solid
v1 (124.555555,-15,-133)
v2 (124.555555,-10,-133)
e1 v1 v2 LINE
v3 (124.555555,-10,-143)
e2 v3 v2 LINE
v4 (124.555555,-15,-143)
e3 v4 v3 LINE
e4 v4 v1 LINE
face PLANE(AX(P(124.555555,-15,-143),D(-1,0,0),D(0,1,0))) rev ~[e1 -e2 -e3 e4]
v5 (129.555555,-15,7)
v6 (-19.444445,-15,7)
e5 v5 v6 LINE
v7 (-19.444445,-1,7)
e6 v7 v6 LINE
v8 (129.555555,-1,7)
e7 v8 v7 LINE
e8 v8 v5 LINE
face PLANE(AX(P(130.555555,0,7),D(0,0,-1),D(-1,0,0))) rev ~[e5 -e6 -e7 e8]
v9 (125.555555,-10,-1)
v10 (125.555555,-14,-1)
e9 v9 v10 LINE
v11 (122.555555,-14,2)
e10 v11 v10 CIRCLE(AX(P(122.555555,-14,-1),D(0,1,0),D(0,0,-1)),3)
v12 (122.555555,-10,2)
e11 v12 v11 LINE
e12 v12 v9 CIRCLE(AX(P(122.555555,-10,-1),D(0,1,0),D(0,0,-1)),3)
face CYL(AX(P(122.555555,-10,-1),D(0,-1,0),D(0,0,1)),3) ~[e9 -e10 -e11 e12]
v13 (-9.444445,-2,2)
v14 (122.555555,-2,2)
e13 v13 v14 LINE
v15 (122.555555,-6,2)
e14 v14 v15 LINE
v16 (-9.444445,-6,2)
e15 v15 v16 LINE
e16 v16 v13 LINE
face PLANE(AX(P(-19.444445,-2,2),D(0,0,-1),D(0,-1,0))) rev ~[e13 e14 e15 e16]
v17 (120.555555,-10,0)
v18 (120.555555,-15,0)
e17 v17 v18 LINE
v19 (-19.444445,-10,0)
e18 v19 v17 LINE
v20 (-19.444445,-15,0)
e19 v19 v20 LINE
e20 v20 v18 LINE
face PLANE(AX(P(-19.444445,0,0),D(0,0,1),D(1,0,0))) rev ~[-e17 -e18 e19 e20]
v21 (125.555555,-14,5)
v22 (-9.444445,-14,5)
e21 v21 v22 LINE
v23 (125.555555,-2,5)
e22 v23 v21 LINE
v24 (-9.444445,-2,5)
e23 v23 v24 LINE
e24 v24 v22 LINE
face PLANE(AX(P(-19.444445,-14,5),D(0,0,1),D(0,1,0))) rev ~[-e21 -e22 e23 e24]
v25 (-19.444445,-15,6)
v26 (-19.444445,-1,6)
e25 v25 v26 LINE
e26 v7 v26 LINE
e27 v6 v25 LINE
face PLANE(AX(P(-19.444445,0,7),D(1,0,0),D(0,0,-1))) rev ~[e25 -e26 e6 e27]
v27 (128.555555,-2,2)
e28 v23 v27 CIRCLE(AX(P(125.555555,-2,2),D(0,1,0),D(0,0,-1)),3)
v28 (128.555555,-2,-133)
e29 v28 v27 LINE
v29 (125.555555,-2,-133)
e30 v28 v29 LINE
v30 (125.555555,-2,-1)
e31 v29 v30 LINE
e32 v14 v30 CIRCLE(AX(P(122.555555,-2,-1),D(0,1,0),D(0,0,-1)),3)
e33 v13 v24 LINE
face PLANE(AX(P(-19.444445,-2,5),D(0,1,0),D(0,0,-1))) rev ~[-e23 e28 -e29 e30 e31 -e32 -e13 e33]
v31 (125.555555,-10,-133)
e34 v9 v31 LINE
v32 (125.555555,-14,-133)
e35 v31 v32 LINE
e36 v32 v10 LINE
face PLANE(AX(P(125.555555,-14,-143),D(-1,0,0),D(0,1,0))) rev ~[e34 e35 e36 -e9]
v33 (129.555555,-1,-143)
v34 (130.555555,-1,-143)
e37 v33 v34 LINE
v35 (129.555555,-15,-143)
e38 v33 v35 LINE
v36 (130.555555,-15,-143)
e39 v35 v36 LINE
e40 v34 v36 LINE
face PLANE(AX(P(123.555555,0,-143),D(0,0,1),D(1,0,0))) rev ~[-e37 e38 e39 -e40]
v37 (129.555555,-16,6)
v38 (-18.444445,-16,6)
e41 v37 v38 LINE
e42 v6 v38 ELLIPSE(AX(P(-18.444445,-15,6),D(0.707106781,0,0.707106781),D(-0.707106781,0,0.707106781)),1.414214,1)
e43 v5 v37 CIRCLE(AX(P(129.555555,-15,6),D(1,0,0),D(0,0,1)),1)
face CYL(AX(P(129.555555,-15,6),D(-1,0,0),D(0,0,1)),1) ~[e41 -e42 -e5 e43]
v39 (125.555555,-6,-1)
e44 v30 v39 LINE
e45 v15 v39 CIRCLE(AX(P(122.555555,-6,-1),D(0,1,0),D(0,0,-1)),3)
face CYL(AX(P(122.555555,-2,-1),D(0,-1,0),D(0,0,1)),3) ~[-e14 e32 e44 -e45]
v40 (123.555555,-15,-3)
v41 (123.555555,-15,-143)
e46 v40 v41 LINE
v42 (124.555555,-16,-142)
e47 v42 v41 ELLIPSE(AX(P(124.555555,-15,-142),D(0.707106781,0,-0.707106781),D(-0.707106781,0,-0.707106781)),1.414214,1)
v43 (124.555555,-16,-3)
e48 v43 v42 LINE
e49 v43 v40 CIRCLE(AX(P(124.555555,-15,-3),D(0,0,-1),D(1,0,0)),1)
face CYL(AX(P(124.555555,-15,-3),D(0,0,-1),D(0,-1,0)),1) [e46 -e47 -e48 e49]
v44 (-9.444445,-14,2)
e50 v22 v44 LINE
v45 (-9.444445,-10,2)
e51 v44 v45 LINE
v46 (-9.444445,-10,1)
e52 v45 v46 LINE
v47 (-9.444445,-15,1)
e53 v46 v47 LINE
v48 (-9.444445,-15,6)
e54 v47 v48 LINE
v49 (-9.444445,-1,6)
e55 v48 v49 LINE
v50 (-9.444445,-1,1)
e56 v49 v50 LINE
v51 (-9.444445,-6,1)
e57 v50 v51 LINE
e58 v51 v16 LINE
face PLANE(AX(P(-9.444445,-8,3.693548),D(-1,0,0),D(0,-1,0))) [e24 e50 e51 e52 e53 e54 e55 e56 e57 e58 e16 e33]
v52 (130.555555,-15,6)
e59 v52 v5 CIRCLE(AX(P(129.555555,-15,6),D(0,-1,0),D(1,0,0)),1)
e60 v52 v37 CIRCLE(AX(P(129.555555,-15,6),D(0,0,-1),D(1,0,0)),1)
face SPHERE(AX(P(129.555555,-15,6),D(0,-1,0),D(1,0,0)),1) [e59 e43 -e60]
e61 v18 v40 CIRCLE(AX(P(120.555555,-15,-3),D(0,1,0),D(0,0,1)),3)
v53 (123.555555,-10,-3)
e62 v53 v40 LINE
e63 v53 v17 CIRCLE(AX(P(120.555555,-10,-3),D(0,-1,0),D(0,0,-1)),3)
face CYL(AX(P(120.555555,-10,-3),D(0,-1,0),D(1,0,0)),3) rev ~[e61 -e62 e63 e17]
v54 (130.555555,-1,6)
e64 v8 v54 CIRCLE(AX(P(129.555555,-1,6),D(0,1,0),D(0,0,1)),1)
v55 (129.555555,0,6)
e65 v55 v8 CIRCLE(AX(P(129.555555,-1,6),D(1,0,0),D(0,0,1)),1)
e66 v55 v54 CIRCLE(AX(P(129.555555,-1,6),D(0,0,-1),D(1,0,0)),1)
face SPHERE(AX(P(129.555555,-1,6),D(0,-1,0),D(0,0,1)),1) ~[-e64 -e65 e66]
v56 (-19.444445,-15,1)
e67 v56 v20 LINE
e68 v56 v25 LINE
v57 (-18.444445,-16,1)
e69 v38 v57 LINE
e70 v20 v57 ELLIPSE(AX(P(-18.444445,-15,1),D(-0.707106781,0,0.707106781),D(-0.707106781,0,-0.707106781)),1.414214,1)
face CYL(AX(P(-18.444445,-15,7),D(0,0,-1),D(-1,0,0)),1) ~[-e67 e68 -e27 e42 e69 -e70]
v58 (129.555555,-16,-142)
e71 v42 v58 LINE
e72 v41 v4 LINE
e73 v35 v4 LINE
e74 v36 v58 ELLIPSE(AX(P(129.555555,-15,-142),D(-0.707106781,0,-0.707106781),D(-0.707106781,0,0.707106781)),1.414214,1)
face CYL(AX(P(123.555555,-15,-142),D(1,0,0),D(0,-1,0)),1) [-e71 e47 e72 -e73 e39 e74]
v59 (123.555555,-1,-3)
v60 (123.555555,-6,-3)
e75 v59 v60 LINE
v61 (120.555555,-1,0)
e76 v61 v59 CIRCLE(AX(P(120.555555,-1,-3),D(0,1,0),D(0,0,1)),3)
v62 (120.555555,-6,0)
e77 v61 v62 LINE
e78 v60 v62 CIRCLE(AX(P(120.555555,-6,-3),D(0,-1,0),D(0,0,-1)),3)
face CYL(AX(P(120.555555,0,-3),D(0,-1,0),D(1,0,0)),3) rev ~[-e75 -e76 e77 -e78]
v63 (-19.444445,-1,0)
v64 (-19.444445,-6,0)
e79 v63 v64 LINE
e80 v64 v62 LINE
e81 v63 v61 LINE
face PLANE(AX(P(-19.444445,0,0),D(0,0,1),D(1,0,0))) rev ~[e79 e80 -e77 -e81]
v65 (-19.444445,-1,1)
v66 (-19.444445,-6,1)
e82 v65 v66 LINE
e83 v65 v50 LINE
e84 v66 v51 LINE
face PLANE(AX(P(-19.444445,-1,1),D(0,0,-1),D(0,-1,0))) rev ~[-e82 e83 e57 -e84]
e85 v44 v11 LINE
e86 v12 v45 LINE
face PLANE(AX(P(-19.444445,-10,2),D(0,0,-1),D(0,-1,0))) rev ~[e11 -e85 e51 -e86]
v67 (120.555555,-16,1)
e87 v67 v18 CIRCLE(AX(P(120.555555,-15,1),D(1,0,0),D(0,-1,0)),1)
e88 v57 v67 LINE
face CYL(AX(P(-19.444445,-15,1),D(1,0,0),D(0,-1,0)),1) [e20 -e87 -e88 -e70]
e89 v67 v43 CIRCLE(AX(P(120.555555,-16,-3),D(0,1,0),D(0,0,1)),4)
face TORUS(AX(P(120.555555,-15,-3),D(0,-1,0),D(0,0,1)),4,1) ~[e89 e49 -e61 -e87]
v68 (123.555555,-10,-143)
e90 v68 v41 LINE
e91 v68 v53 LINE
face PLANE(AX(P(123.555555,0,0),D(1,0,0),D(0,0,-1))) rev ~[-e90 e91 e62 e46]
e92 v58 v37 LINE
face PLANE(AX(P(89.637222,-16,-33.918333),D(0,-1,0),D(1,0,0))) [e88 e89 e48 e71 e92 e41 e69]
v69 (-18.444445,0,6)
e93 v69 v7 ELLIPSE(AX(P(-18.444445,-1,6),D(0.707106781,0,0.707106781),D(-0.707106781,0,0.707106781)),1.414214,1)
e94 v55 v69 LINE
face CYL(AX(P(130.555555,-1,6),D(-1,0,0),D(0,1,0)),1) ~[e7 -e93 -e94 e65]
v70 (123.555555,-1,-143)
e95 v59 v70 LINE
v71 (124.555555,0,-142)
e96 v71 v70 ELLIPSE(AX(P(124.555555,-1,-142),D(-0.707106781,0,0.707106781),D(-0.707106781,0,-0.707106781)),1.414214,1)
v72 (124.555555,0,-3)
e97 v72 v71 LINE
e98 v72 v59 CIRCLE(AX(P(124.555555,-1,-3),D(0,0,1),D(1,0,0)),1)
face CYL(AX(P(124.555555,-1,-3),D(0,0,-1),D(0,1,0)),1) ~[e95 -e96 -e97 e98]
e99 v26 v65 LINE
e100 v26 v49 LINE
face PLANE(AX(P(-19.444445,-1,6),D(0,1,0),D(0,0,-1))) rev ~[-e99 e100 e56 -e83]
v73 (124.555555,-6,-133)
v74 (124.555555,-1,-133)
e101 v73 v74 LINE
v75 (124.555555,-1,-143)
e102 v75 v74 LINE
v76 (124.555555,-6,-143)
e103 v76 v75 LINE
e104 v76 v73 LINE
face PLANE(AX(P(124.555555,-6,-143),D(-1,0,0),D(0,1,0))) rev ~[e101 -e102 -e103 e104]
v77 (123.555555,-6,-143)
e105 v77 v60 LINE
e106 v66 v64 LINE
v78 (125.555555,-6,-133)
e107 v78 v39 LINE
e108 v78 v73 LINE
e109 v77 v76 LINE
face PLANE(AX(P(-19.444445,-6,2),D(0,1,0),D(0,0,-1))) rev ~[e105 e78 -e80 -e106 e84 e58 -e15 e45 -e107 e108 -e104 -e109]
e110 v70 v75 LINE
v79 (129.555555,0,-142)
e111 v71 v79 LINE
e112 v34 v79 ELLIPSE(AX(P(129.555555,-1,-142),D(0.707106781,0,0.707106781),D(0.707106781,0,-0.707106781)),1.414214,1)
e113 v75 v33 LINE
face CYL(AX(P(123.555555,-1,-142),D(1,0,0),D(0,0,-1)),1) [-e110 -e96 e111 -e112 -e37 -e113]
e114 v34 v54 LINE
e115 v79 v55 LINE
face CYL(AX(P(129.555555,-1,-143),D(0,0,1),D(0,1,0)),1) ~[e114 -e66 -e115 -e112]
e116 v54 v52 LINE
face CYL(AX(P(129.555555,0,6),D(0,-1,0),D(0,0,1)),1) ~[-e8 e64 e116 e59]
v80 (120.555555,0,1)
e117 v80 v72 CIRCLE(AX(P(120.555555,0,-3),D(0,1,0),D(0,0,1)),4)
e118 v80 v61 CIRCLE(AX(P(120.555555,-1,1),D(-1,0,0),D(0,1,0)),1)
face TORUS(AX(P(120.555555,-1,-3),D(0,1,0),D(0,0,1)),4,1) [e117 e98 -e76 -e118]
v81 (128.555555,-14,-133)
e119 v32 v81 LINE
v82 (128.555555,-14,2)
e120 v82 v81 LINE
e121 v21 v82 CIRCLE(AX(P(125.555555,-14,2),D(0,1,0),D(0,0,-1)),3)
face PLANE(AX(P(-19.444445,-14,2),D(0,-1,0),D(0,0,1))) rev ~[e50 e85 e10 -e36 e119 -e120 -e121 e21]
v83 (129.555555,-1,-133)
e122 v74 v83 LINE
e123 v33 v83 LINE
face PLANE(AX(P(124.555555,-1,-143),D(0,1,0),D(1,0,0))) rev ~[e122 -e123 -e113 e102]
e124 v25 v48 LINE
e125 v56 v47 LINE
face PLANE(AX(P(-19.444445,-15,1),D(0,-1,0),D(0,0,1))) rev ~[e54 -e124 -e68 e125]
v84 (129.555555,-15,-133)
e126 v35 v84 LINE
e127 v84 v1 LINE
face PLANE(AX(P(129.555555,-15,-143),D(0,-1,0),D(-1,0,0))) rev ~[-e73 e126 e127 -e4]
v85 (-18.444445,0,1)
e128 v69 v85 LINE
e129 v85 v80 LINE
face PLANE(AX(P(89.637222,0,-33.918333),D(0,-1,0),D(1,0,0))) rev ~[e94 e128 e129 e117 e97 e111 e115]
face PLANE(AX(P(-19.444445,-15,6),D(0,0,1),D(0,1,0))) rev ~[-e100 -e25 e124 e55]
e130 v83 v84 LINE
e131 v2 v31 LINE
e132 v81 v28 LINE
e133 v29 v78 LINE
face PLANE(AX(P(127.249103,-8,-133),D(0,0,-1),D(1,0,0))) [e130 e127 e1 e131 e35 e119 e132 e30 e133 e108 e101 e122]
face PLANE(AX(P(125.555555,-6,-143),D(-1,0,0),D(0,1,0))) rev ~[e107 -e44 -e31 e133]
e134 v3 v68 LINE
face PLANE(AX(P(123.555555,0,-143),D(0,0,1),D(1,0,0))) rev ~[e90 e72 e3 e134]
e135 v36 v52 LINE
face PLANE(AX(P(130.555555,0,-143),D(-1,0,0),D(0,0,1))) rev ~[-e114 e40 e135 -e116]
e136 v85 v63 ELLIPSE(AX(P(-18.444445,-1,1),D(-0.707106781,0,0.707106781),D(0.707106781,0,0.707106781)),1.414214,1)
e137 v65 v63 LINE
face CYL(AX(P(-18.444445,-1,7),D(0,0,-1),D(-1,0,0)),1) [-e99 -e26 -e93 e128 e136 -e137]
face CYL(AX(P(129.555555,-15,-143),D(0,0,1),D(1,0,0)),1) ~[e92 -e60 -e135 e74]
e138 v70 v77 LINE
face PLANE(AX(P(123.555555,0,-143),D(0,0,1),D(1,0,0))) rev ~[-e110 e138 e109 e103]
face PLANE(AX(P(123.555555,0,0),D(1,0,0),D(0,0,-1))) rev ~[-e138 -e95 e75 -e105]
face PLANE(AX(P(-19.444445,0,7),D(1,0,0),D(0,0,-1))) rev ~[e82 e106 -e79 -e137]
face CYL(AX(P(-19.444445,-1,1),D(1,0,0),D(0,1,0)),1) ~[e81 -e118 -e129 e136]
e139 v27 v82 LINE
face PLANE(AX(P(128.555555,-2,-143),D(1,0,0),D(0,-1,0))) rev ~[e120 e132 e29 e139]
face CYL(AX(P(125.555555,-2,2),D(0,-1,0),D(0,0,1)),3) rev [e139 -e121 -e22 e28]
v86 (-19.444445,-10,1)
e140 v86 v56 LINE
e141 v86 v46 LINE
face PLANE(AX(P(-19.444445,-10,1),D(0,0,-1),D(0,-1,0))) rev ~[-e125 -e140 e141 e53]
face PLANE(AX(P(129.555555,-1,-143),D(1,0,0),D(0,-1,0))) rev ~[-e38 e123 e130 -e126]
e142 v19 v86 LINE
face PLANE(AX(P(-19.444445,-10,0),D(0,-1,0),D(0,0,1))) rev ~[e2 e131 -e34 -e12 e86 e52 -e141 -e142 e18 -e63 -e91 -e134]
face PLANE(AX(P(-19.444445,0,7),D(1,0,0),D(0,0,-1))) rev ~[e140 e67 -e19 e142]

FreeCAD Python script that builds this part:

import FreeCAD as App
import Part
import Sketcher


def edges_at(feature, points):
    """Names of the edges that pass closest to the given points."""
    edges = feature.Shape.Edges
    near = lambda p: min(range(len(edges)), key=lambda i: edges[i].distToShape(Part.Vertex(*p))[0])
    return sorted({f"Edge{near(p) + 1}" for p in points})


def add_polygon(sketch, points):
    """Adds a closed chain of lines whose ends are joined by coincident constraints."""
    first, n = sketch.GeometryCount, len(points)
    for a, b in zip(points, points[1:] + points[:1]):
        sketch.addGeometry(Part.LineSegment(App.Vector(*a, 0), App.Vector(*b, 0)), False)
    for i in range(n):
        sketch.addConstraint(Sketcher.Constraint("Coincident", first + i, 2, first + (i + 1) % n, 1))

doc = App.newDocument("Part")
body = doc.addObject("PartDesign::Body", "Body")

# Sketch on XZ plane
sketch1 = body.newObject("Sketcher::SketchObject", "Sketch")
sketch1.AttachmentSupport = (doc.getObject("XZ_Plane"), [""])
sketch1.MapMode = "FlatFace"
add_polygon(sketch1, [(131, 7), (-19, 7), (-19, 0), (124, 0), (124, -143), (131, -143)])  # lines 0-5
sketch1.addConstraint([
    Sketcher.Constraint("Horizontal", 0),
    Sketcher.Constraint("Vertical", 1),
    Sketcher.Constraint("Horizontal", 2),
    Sketcher.Constraint("Vertical", 3),
    Sketcher.Constraint("Horizontal", 4),
    Sketcher.Constraint("Vertical", 5),
    Sketcher.Constraint("PointOnObject", 1, 2, -1),
    Sketcher.Constraint("Equal", 4, 1),
    Sketcher.Constraint("Equal", 2, 3),
    Sketcher.Constraint("DistanceX", 0, 2, 0, 1, 150.0),
    Sketcher.Constraint("DistanceX", 2, 1, 2, 2, 143.0),
    Sketcher.Constraint("DistanceX", 0, 2, -1, 1, 19.444445),
])
pad1 = body.newObject("PartDesign::Pad", "Pad")
pad1.Profile = sketch1
pad1.Length = 16

# Sketch on XY plane
sketch2 = body.newObject("Sketcher::SketchObject", "Sketch001")
sketch2.AttachmentSupport = (doc.getObject("XY_Plane"), [""])
sketch2.MapMode = "FlatFace"
sketch2.AttachmentOffset = App.Placement(App.Vector(0, 0, -143), App.Rotation())
add_polygon(sketch2, [(125.6, -10), (123.6, -10), (123.6, -6), (125.6, -6), (125.6, -2), (128.6, -2), (128.6, -14), (125.6, -14)])  # lines 0-7
sketch2.addConstraint([
    Sketcher.Constraint("Horizontal", 0),
    Sketcher.Constraint("Vertical", 1),
    Sketcher.Constraint("Horizontal", 2),
    Sketcher.Constraint("Vertical", 3),
    Sketcher.Constraint("Horizontal", 4),
    Sketcher.Constraint("Vertical", 5),
    Sketcher.Constraint("Horizontal", 6),
    Sketcher.Constraint("Vertical", 7),
    Sketcher.Constraint("Vertical", 3, 2, 6, 2),
    Sketcher.Constraint("Equal", 1, 3),
    Sketcher.Constraint("Equal", 3, 7),
    Sketcher.Constraint("DistanceX", 0, 2, 0, 1, 2.0),
    Sketcher.Constraint("DistanceX", 4, 1, 4, 2, 3.0),
    Sketcher.Constraint("DistanceY", 1, 1, 1, 2, 4.0),
    Sketcher.Constraint("DistanceY", 0, 2, -1, 1, 10.0),
    Sketcher.Constraint("DistanceX", -1, 1, 0, 2, 123.555555),
])
pocket1 = body.newObject("PartDesign::Pocket", "Pocket")
pocket1.Profile = sketch2
pocket1.Length = 148
pocket1.Reversed = True

# Sketch on YZ plane
sketch3 = body.newObject("Sketcher::SketchObject", "Sketch002")
sketch3.AttachmentSupport = (doc.getObject("YZ_Plane"), [""])
sketch3.MapMode = "FlatFace"
sketch3.AttachmentOffset = App.Placement(App.Vector(0, 0, -19.444445), App.Rotation())
add_polygon(sketch3, [(-6, 2), (-6, 0), (-10, 0), (-10, 2), (-14, 2), (-14, 5), (-2, 5), (-2, 2)])  # lines 0-7
sketch3.addConstraint([
    Sketcher.Constraint("Vertical", 0),
    Sketcher.Constraint("Horizontal", 1),
    Sketcher.Constraint("Vertical", 2),
    Sketcher.Constraint("Horizontal", 3),
    Sketcher.Constraint("Vertical", 4),
    Sketcher.Constraint("Horizontal", 5),
    Sketcher.Constraint("Vertical", 6),
    Sketcher.Constraint("Horizontal", 7),
    Sketcher.Constraint("PointOnObject", 0, 2, -1),
    Sketcher.Constraint("Horizontal", 3, 2, 6, 2),
    Sketcher.Constraint("Equal", 1, 3),
    Sketcher.Constraint("Equal", 3, 7),
    Sketcher.Constraint("DistanceX", 1, 2, 1, 1, 4.0),
    Sketcher.Constraint("DistanceY", 0, 2, 0, 1, 2.0),
    Sketcher.Constraint("DistanceY", 4, 1, 4, 2, 3.0),
    Sketcher.Constraint("DistanceX", 0, 2, -1, 1, 6.0),
])
pocket2 = body.newObject("PartDesign::Pocket", "Pocket001")
pocket2.Profile = sketch3
pocket2.Length = 148
pocket2.Reversed = True
doc.recompute()

fillet = body.newObject("PartDesign::Fillet", "Fillet")
fillet.Base = (pocket2, edges_at(pocket2, [(128.556, -8, 5), (123.556, -3, 0), (123.556, -13, 0)]))
fillet.Radius = 3
doc.recompute()

fillet2 = body.newObject("PartDesign::Fillet", "Fillet001")
fillet2.Base = (fillet, edges_at(fillet, [(125.556, -4, 2), (125.556, -12, 2)]))
fillet2.Radius = 3
doc.recompute()

fillet3 = body.newObject("PartDesign::Fillet", "Fillet002")
fillet3.Base = (fillet2, edges_at(fillet2, [
    (130.556, -8, 7),
    (55.556, 0, 7),
    (50.556, 0, 0),
    (122.677, 0, -0.879),
    (-19.444, 0, 3.5),
    (123.556, 0, -73),
    (127.056, 0, -143),
    (130.556, 0, -68),
]))
fillet3.Radius = 1
doc.recompute()

fillet4 = body.newObject("PartDesign::Fillet", "Fillet003")
fillet4.Base = (fillet3, edges_at(fillet3, [
    (55.056, -16, 7),
    (130.263, -16, 6.707),
    (-19.444, -16, 3.5),
    (130.556, -16, -68.5),
    (50.556, -16, 0),
    (127.056, -16, -143),
    (122.677, -16, -0.879),
    (123.556, -16, -73),
]))
fillet4.Radius = 1

# Sketch on YZ plane
sketch4 = body.newObject("Sketcher::SketchObject", "Sketch003")
sketch4.AttachmentSupport = (doc.getObject("YZ_Plane"), [""])
sketch4.MapMode = "FlatFace"
sketch4.AttachmentOffset = App.Placement(App.Vector(0, 0, -19.444445), App.Rotation())
add_polygon(sketch4, [(-10, 1), (-15, 1), (-15, 6), (-1, 6), (-1, 1), (-6, 1), (-6, 2), (-2, 2), (-2, 5), (-14, 5), (-14, 2), (-10, 2)])  # lines 0-11
sketch4.addConstraint([
    Sketcher.Constraint("Horizontal", 0),
    Sketcher.Constraint("Vertical", 1),
    Sketcher.Constraint("Horizontal", 2),
    Sketcher.Constraint("Vertical", 3),
    Sketcher.Constraint("Horizontal", 4),
    Sketcher.Constraint("Vertical", 5),
    Sketcher.Constraint("Horizontal", 6),
    Sketcher.Constraint("Vertical", 7),
    Sketcher.Constraint("Horizontal", 8),
    Sketcher.Constraint("Vertical", 9),
    Sketcher.Constraint("Horizontal", 10),
    Sketcher.Constraint("Vertical", 11),
    Sketcher.Constraint("Horizontal", 0, 2, 3, 2),
    Sketcher.Constraint("Horizontal", 6, 2, 9, 2),
    Sketcher.Constraint("Equal", 0, 4),
    Sketcher.Constraint("Equal", 6, 10),
    Sketcher.Constraint("Equal", 4, 1),
    Sketcher.Constraint("DistanceX", 0, 2, 0, 1, 5.0),
    Sketcher.Constraint("DistanceX", 2, 1, 2, 2, 14.0),
    Sketcher.Constraint("DistanceX", 6, 1, 6, 2, 4.0),
    Sketcher.Constraint("DistanceY", 5, 1, 5, 2, 1.0),
    Sketcher.Constraint("DistanceY", 7, 1, 7, 2, 3.0),
    Sketcher.Constraint("DistanceX", 0, 2, -1, 1, 15.0),
    Sketcher.Constraint("DistanceY", -1, 1, 0, 2, 1.0),
])
pocket3 = body.newObject("PartDesign::Pocket", "Pocket002")
pocket3.Profile = sketch4
pocket3.Length = 10
pocket3.Reversed = True

# Sketch on XY plane
sketch5 = body.newObject("Sketcher::SketchObject", "Sketch004")
sketch5.AttachmentSupport = (doc.getObject("XY_Plane"), [""])
sketch5.MapMode = "FlatFace"
sketch5.AttachmentOffset = App.Placement(App.Vector(0, 0, -143), App.Rotation())
add_polygon(sketch5, [(129.6, -15), (124.6, -15), (124.6, -10), (125.6, -10), (125.6, -14), (128.6, -14), (128.6, -2), (125.6, -2), (125.6, -6), (124.6, -6), (124.6, -1), (129.6, -1)])  # lines 0-11
sketch5.addConstraint([
    Sketcher.Constraint("Horizontal", 0),
    Sketcher.Constraint("Vertical", 1),
    Sketcher.Constraint("Horizontal", 2),
    Sketcher.Constraint("Vertical", 3),
    Sketcher.Constraint("Horizontal", 4),
    Sketcher.Constraint("Vertical", 5),
    Sketcher.Constraint("Horizontal", 6),
    Sketcher.Constraint("Vertical", 7),
    Sketcher.Constraint("Horizontal", 8),
    Sketcher.Constraint("Vertical", 9),
    Sketcher.Constraint("Horizontal", 10),
    Sketcher.Constraint("Vertical", 11),
    Sketcher.Constraint("Vertical", 3, 2, 6, 2),
    Sketcher.Constraint("Vertical", 1, 2, 8, 2),
    Sketcher.Constraint("Equal", 10, 1),
    Sketcher.Constraint("Equal", 3, 7),
    Sketcher.Constraint("Equal", 1, 9),
    Sketcher.Constraint("DistanceX", 0, 2, 0, 1, 5.0),
    Sketcher.Constraint("DistanceX", 2, 1, 2, 2, 1.0),
    Sketcher.Constraint("DistanceX", 4, 1, 4, 2, 3.0),
    Sketcher.Constraint("DistanceY", 3, 2, 3, 1, 4.0),
    Sketcher.Constraint("DistanceY", 5, 1, 5, 2, 12.0),
    Sketcher.Constraint("DistanceY", 0, 2, -1, 1, 15.0),
    Sketcher.Constraint("DistanceX", -1, 1, 0, 2, 124.555555),
])
pocket4 = body.newObject("PartDesign::Pocket", "Pocket003")
pocket4.Profile = sketch5
pocket4.Length = 10
pocket4.Reversed = True

doc.recompute()
